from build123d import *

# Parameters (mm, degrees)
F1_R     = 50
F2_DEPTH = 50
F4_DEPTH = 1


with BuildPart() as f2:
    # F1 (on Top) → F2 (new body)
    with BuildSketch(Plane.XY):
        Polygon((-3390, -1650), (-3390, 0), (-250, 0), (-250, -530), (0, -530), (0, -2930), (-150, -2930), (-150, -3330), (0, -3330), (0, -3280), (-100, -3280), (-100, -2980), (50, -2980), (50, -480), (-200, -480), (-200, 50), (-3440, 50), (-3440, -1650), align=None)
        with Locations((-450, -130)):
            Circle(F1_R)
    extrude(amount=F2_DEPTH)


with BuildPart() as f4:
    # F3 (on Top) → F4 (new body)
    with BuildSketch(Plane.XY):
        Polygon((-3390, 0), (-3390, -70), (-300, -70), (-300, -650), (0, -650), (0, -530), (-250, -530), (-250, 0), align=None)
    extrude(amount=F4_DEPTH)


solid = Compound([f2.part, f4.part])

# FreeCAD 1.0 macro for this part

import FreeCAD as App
import Part
import Sketcher

doc = App.newDocument("Part")
body = doc.addObject("PartDesign::Body", "Body")
body.AllowCompound = True

# Sketch on XY plane
sketch1 = body.newObject("Sketcher::SketchObject", "Sketch")
sketch1.AttachmentSupport = (doc.getObject("XY_Plane"), [""])
sketch1.MapMode = "FlatFace"
sketch1.addGeometry(Part.LineSegment(App.Vector(-3390, -1650, 0), App.Vector(-3390, 0, 0)), False)
sketch1.addGeometry(Part.LineSegment(App.Vector(-3390, 0, 0), App.Vector(-250, 0, 0)), False)
sketch1.addGeometry(Part.LineSegment(App.Vector(-250, 0, 0), App.Vector(-250, -530, 0)), False)
sketch1.addGeometry(Part.LineSegment(App.Vector(-250, -530, 0), App.Vector(0, -530, 0)), False)
sketch1.addGeometry(Part.LineSegment(App.Vector(0, -530, 0), App.Vector(0, -2930, 0)), False)
sketch1.addGeometry(Part.LineSegment(App.Vector(0, -2930, 0), App.Vector(-150, -2930, 0)), False)
sketch1.addGeometry(Part.LineSegment(App.Vector(-150, -2930, 0), App.Vector(-150, -3330, 0)), False)
sketch1.addGeometry(Part.LineSegment(App.Vector(-150, -3330, 0), App.Vector(0, -3330, 0)), False)
sketch1.addGeometry(Part.LineSegment(App.Vector(0, -3330, 0), App.Vector(0, -3280, 0)), False)
sketch1.addGeometry(Part.LineSegment(App.Vector(0, -3280, 0), App.Vector(-100, -3280, 0)), False)
sketch1.addGeometry(Part.LineSegment(App.Vector(-100, -3280, 0), App.Vector(-100, -2980, 0)), False)
sketch1.addGeometry(Part.LineSegment(App.Vector(-100, -2980, 0), App.Vector(50, -2980, 0)), False)
sketch1.addGeometry(Part.LineSegment(App.Vector(50, -2980, 0), App.Vector(50, -480, 0)), False)
sketch1.addGeometry(Part.LineSegment(App.Vector(50, -480, 0), App.Vector(-200, -480, 0)), False)
sketch1.addGeometry(Part.LineSegment(App.Vector(-200, -480, 0), App.Vector(-200, 50, 0)), False)
sketch1.addGeometry(Part.LineSegment(App.Vector(-200, 50, 0), App.Vector(-3440, 50, 0)), False)
sketch1.addGeometry(Part.LineSegment(App.Vector(-3440, 50, 0), App.Vector(-3440, -1650, 0)), False)
sketch1.addGeometry(Part.LineSegment(App.Vector(-3440, -1650, 0), App.Vector(-3390, -1650, 0)), False)
sketch1.addGeometry(Part.Circle(App.Vector(-450, -130, 0), App.Vector(0, 0, 1), 50), False)
sketch1.addConstraint(Sketcher.Constraint("Coincident", 0, 2, 1, 1))
sketch1.addConstraint(Sketcher.Constraint("Coincident", 1, 2, 2, 1))
sketch1.addConstraint(Sketcher.Constraint("Coincident", 2, 2, 3, 1))
sketch1.addConstraint(Sketcher.Constraint("Coincident", 3, 2, 4, 1))
sketch1.addConstraint(Sketcher.Constraint("Coincident", 4, 2, 5, 1))
sketch1.addConstraint(Sketcher.Constraint("Coincident", 5, 2, 6, 1))
sketch1.addConstraint(Sketcher.Constraint("Coincident", 6, 2, 7, 1))
sketch1.addConstraint(Sketcher.Constraint("Coincident", 7, 2, 8, 1))
sketch1.addConstraint(Sketcher.Constraint("Coincident", 8, 2, 9, 1))
sketch1.addConstraint(Sketcher.Constraint("Coincident", 9, 2, 10, 1))
sketch1.addConstraint(Sketcher.Constraint("Coincident", 10, 2, 11, 1))
sketch1.addConstraint(Sketcher.Constraint("Coincident", 11, 2, 12, 1))
sketch1.addConstraint(Sketcher.Constraint("Coincident", 12, 2, 13, 1))
sketch1.addConstraint(Sketcher.Constraint("Coincident", 13, 2, 14, 1))
sketch1.addConstraint(Sketcher.Constraint("Coincident", 14, 2, 15, 1))
sketch1.addConstraint(Sketcher.Constraint("Coincident", 15, 2, 16, 1))
sketch1.addConstraint(Sketcher.Constraint("Coincident", 16, 2, 17, 1))
sketch1.addConstraint(Sketcher.Constraint("Coincident", 17, 2, 0, 1))
sketch1.addConstraint(Sketcher.Constraint("Vertical", 0))
sketch1.addConstraint(Sketcher.Constraint("Horizontal", 1))
sketch1.addConstraint(Sketcher.Constraint("Vertical", 2))
sketch1.addConstraint(Sketcher.Constraint("Horizontal", 3))
sketch1.addConstraint(Sketcher.Constraint("Vertical", 4))
sketch1.addConstraint(Sketcher.Constraint("Horizontal", 5))
sketch1.addConstraint(Sketcher.Constraint("Vertical", 6))
sketch1.addConstraint(Sketcher.Constraint("Horizontal", 7))
sketch1.addConstraint(Sketcher.Constraint("Vertical", 8))
sketch1.addConstraint(Sketcher.Constraint("Horizontal", 9))
sketch1.addConstraint(Sketcher.Constraint("Vertical", 10))
sketch1.addConstraint(Sketcher.Constraint("Horizontal", 11))
sketch1.addConstraint(Sketcher.Constraint("Vertical", 12))
sketch1.addConstraint(Sketcher.Constraint("Horizontal", 13))
sketch1.addConstraint(Sketcher.Constraint("Vertical", 14))
sketch1.addConstraint(Sketcher.Constraint("Horizontal", 15))
sketch1.addConstraint(Sketcher.Constraint("Vertical", 16))
sketch1.addConstraint(Sketcher.Constraint("Horizontal", 17))
sketch1.addConstraint(Sketcher.Constraint("PointOnObject", 0, 2, -1))
sketch1.addConstraint(Sketcher.Constraint("PointOnObject", 3, 2, -2))
sketch1.addConstraint(Sketcher.Constraint("PointOnObject", 7, 2, -2))
sketch1.addConstraint(Sketcher.Constraint("Equal", 7, 11))
sketch1.addConstraint(Sketcher.Constraint("Equal", 3, 13))
sketch1.addConstraint(Sketcher.Constraint("Equal", 17, 8))
sketch1.addConstraint(Sketcher.Constraint("Equal", 2, 14))
sketch1.addConstraint(Sketcher.Constraint("Diameter", 18, 100.0))
sketch1.addConstraint(Sketcher.Constraint("DistanceX", 1, 1, 1, 2, 3140.0))
sketch1.addConstraint(Sketcher.Constraint("DistanceX", 3, 1, 3, 2, 250.0))
sketch1.addConstraint(Sketcher.Constraint("DistanceX", 5, 2, 5, 1, 150.0))
sketch1.addConstraint(Sketcher.Constraint("DistanceX", 9, 2, 9, 1, 100.0))
sketch1.addConstraint(Sketcher.Constraint("DistanceX", 15, 2, 15, 1, 3240.0))
sketch1.addConstraint(Sketcher.Constraint("DistanceY", 0, 1, 0, 2, 1650.0))
sketch1.addConstraint(Sketcher.Constraint("DistanceY", 2, 2, 2, 1, 530.0))
sketch1.addConstraint(Sketcher.Constraint("DistanceY", 4, 2, 4, 1, 2400.0))
sketch1.addConstraint(Sketcher.Constraint("DistanceY", 6, 2, 6, 1, 400.0))
sketch1.addConstraint(Sketcher.Constraint("DistanceY", 10, 1, 10, 2, 300.0))
sketch1.addConstraint(Sketcher.Constraint("DistanceY", 12, 1, 12, 2, 2500.0))
sketch1.addConstraint(Sketcher.Constraint("DistanceX", 18, 3, -1, 1, 450.0))
sketch1.addConstraint(Sketcher.Constraint("DistanceY", 18, 3, -1, 1, 130.0))
pad1 = body.newObject("PartDesign::Pad", "Pad")
pad1.Profile = sketch1
pad1.Length = 50
body2 = doc.addObject("PartDesign::Body", "Body001")

# Sketch on XY plane
sketch2 = body2.newObject("Sketcher::SketchObject", "Sketch001")
sketch2.AttachmentSupport = (doc.getObject("XY_Plane001"), [""])
sketch2.MapMode = "FlatFace"
sketch2.addGeometry(Part.LineSegment(App.Vector(-3390, 0, 0), App.Vector(-3390, -70, 0)), False)
sketch2.addGeometry(Part.LineSegment(App.Vector(-3390, -70, 0), App.Vector(-300, -70, 0)), False)
sketch2.addGeometry(Part.LineSegment(App.Vector(-300, -70, 0), App.Vector(-300, -650, 0)), False)
sketch2.addGeometry(Part.LineSegment(App.Vector(-300, -650, 0), App.Vector(0, -650, 0)), False)
sketch2.addGeometry(Part.LineSegment(App.Vector(0, -650, 0), App.Vector(0, -530, 0)), False)
sketch2.addGeometry(Part.LineSegment(App.Vector(0, -530, 0), App.Vector(-250, -530, 0)), False)
sketch2.addGeometry(Part.LineSegment(App.Vector(-250, -530, 0), App.Vector(-250, 0, 0)), False)
sketch2.addGeometry(Part.LineSegment(App.Vector(-250, 0, 0), App.Vector(-3390, 0, 0)), False)
sketch2.addConstraint(Sketcher.Constraint("Coincident", 0, 2, 1, 1))
sketch2.addConstraint(Sketcher.Constraint("Coincident", 1, 2, 2, 1))
sketch2.addConstraint(Sketcher.Constraint("Coincident", 2, 2, 3, 1))
sketch2.addConstraint(Sketcher.Constraint("Coincident", 3, 2, 4, 1))
sketch2.addConstraint(Sketcher.Constraint("Coincident", 4, 2, 5, 1))
sketch2.addConstraint(Sketcher.Constraint("Coincident", 5, 2, 6, 1))
sketch2.addConstraint(Sketcher.Constraint("Coincident", 6, 2, 7, 1))
sketch2.addConstraint(Sketcher.Constraint("Coincident", 7, 2, 0, 1))
sketch2.addConstraint(Sketcher.Constraint("Vertical", 0))
sketch2.addConstraint(Sketcher.Constraint("Horizontal", 1))
sketch2.addConstraint(Sketcher.Constraint("Vertical", 2))
sketch2.addConstraint(Sketcher.Constraint("Horizontal", 3))
sketch2.addConstraint(Sketcher.Constraint("Vertical", 4))
sketch2.addConstraint(Sketcher.Constraint("Horizontal", 5))
sketch2.addConstraint(Sketcher.Constraint("Vertical", 6))
sketch2.addConstraint(Sketcher.Constraint("Horizontal", 7))
sketch2.addConstraint(Sketcher.Constraint("PointOnObject", 3, 2, -2))
sketch2.addConstraint(Sketcher.Constraint("PointOnObject", 6, 2, -1))
sketch2.addConstraint(Sketcher.Constraint("DistanceX", 1, 1, 1, 2, 3090.0))
sketch2.addConstraint(Sketcher.Constraint("DistanceX", 3, 1, 3, 2, 300.0))
sketch2.addConstraint(Sketcher.Constraint("DistanceX", 5, 2, 5, 1, 250.0))
sketch2.addConstraint(Sketcher.Constraint("DistanceY", 0, 2, 0, 1, 70.0))
sketch2.addConstraint(Sketcher.Constraint("DistanceY", 2, 2, 2, 1, 580.0))
sketch2.addConstraint(Sketcher.Constraint("DistanceY", 4, 1, 4, 2, 120.0))
pad2 = body2.newObject("PartDesign::Pad", "Pad001")
pad2.Profile = sketch2
pad2.Length = 1

doc.recompute()
